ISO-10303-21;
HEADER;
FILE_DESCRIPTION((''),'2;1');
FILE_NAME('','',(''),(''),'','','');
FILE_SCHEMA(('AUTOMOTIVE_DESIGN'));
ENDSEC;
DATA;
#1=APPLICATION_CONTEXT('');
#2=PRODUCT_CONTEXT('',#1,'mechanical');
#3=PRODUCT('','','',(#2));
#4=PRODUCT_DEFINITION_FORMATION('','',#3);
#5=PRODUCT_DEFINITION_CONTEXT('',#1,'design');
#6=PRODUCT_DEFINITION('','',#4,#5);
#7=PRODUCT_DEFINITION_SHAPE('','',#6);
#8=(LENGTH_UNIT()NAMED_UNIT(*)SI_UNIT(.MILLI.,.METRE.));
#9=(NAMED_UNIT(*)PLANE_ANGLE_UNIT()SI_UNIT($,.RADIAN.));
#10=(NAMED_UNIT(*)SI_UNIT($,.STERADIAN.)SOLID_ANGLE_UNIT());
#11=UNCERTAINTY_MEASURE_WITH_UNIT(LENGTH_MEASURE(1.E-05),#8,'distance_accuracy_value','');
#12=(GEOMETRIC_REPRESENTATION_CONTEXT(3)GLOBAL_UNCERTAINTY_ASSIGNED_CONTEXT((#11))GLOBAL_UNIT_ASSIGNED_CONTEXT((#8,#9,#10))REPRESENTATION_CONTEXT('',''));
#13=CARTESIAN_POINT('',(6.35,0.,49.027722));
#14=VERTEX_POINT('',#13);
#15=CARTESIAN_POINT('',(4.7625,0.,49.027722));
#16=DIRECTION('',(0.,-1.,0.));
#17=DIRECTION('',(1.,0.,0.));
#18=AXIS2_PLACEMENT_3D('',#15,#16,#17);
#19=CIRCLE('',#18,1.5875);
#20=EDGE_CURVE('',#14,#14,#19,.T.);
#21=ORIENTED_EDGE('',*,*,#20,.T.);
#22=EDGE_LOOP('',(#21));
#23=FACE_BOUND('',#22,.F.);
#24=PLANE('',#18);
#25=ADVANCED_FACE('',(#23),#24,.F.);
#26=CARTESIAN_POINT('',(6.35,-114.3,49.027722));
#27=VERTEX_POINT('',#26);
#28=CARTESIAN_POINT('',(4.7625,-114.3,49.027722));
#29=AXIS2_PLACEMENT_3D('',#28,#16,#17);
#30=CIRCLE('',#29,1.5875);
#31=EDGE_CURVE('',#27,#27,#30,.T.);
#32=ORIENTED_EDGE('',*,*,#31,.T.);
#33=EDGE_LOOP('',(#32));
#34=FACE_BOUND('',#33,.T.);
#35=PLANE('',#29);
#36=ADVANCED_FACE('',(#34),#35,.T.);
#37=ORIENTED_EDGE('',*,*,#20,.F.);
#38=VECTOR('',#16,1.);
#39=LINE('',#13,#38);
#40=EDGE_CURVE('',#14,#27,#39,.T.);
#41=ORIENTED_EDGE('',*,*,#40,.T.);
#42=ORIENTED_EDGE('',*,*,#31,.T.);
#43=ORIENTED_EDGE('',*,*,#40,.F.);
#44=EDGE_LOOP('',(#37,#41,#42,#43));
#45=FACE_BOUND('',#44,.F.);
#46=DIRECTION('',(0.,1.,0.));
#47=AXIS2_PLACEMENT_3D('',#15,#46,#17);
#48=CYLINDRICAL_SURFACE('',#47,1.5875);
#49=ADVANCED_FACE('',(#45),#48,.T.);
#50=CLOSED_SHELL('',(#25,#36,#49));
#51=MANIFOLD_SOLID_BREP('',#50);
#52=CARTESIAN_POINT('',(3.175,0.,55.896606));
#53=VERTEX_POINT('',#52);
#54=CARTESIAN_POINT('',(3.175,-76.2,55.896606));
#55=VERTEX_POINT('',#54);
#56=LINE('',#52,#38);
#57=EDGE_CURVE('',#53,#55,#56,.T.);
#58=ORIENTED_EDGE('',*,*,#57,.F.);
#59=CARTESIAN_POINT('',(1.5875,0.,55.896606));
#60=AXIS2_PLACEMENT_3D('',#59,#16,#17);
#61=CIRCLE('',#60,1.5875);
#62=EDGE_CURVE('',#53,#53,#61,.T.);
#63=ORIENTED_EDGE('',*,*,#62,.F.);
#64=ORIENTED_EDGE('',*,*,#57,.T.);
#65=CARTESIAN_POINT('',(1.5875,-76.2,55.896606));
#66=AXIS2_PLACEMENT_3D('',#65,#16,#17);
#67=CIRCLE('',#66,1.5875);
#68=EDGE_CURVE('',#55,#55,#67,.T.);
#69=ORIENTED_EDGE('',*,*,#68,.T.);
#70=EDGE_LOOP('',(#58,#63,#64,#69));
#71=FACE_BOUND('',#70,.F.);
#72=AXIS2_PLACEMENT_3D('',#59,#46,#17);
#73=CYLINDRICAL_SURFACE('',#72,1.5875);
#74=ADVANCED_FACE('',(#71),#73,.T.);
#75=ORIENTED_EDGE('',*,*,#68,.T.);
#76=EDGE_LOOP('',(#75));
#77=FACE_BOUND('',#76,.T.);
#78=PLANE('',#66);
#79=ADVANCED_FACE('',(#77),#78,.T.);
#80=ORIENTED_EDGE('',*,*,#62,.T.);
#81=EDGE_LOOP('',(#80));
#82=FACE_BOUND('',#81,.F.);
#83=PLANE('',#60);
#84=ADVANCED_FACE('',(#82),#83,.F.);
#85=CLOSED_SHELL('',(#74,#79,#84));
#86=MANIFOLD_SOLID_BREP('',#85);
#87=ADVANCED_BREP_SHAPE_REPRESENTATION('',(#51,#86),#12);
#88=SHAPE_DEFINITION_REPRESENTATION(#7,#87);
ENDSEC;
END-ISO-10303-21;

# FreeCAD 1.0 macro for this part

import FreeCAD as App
import Part
import Sketcher
from FreeCAD import Vector
Q = App.Units.Quantity

doc = App.newDocument("Part")
body = doc.addObject("PartDesign::Body", "Body")

sketch1 = body.newObject("Sketcher::SketchObject", "Sketch")
sketch1.AttachmentSupport = (doc.getObject("XZ_Plane"), [""])
sketch1.MapMode = "FlatFace"
sketch1.addGeometry(Part.Circle(Vector(1.6, 55.9, 0), Vector(0, 0, 1), 1.6), False)
sketch1.addConstraint(Sketcher.Constraint("Diameter", 0, Q("0.125 in")))
sketch1.addConstraint(Sketcher.Constraint("DistanceX", -1, 1, 0, 3, Q("0.0625 in")))
sketch1.addConstraint(Sketcher.Constraint("DistanceY", -1, 1, 0, 3, 55.896606))
pad1 = body.newObject("PartDesign::Pad", "Pad")
pad1.Profile = sketch1
pad1.Length = Q("3 in")
body2 = doc.addObject("PartDesign::Body", "Body001")

sketch2 = body2.newObject("Sketcher::SketchObject", "Sketch001")
sketch2.AttachmentSupport = (doc.getObject("XZ_Plane001"), [""])
sketch2.MapMode = "FlatFace"
sketch2.addGeometry(Part.Circle(Vector(4.8, 49, 0), Vector(0, 0, 1), 1.6), False)
sketch2.addConstraint(Sketcher.Constraint("Diameter", 0, Q("0.125 in")))
sketch2.addConstraint(Sketcher.Constraint("DistanceX", -1, 1, 0, 3, Q("0.1875 in")))
sketch2.addConstraint(Sketcher.Constraint("DistanceY", -1, 1, 0, 3, 49.027722))
pad2 = body2.newObject("PartDesign::Pad", "Pad001")
pad2.Profile = sketch2
pad2.Length = Q("4.5 in")

doc.recompute()
